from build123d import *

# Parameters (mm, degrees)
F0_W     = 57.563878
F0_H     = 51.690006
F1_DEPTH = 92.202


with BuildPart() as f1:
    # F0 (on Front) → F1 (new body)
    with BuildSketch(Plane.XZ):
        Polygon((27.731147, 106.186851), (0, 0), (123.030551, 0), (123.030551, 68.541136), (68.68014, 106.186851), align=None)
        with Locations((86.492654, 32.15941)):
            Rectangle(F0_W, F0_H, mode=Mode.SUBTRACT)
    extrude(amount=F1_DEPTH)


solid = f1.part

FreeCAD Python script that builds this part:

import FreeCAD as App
import Part
import Sketcher

V = App.Vector

doc = App.newDocument("Part")
params = doc.addObject("Spreadsheet::Sheet", "Params")
for row, (alias, value) in enumerate([
    ("pad1_length", "3.63 in"),
], start=1):
    params.set(f"A{row}", alias)
    params.set(f"B{row}", "=" + value)
    params.setAlias(f"B{row}", alias)

body = doc.addObject("PartDesign::Body", "Body")

# Sketch on XZ plane
sketch1 = body.newObject("Sketcher::SketchObject", "Sketch")
sketch1.AttachmentSupport = (doc.getObject("XZ_Plane"), [""])
sketch1.MapMode = "FlatFace"
sketch1.addGeometry(Part.LineSegment(V(27.731147, 106.186851, 0), V(0, 0, 0)), False)
sketch1.addGeometry(Part.LineSegment(V(0, 0, 0), V(123.030551, 0, 0)), False)
sketch1.addGeometry(Part.LineSegment(V(123.030551, 0, 0), V(123.030551, 68.541136, 0)), False)
sketch1.addGeometry(Part.LineSegment(V(123.030551, 68.541136, 0), V(68.68014, 106.186851, 0)), False)
sketch1.addGeometry(Part.LineSegment(V(68.68014, 106.186851, 0), V(27.731147, 106.186851, 0)), False)
sketch1.addGeometry(Part.LineSegment(V(115.274593, 6.314407, 0), V(57.710715, 6.314407, 0)), False)
sketch1.addGeometry(Part.LineSegment(V(57.710715, 6.314407, 0), V(57.710715, 58.004413, 0)), False)
sketch1.addGeometry(Part.LineSegment(V(57.710715, 58.004413, 0), V(115.274593, 58.004413, 0)), False)
sketch1.addGeometry(Part.LineSegment(V(115.274593, 58.004413, 0), V(115.274593, 6.314407, 0)), False)
sketch1.addConstraint(Sketcher.Constraint("Coincident", 0, 2, 1, 1))
sketch1.addConstraint(Sketcher.Constraint("Coincident", 1, 2, 2, 1))
sketch1.addConstraint(Sketcher.Constraint("Coincident", 2, 2, 3, 1))
sketch1.addConstraint(Sketcher.Constraint("Coincident", 3, 2, 4, 1))
sketch1.addConstraint(Sketcher.Constraint("Coincident", 4, 2, 0, 1))
sketch1.addConstraint(Sketcher.Constraint("Coincident", 5, 2, 6, 1))
sketch1.addConstraint(Sketcher.Constraint("Coincident", 6, 2, 7, 1))
sketch1.addConstraint(Sketcher.Constraint("Coincident", 7, 2, 8, 1))
sketch1.addConstraint(Sketcher.Constraint("Coincident", 8, 2, 5, 1))
sketch1.addConstraint(Sketcher.Constraint("Horizontal", 1))
sketch1.addConstraint(Sketcher.Constraint("Vertical", 2))
sketch1.addConstraint(Sketcher.Constraint("Horizontal", 4))
sketch1.addConstraint(Sketcher.Constraint("Horizontal", 5))
sketch1.addConstraint(Sketcher.Constraint("Vertical", 6))
sketch1.addConstraint(Sketcher.Constraint("Horizontal", 7))
sketch1.addConstraint(Sketcher.Constraint("Vertical", 8))
sketch1.addConstraint(Sketcher.Constraint("Coincident", 0, 2, -1, 1))
sketch1.addConstraint(Sketcher.Constraint("Distance", 3, 66.114802))
sketch1.addConstraint(Sketcher.Constraint("DistanceX", 1, 1, 1, 2, 123.030551))
sketch1.addConstraint(Sketcher.Constraint("DistanceX", 4, 2, 4, 1, 40.948993))
sketch1.addConstraint(Sketcher.Constraint("DistanceX", 5, 2, 5, 1, 57.563878))
sketch1.addConstraint(Sketcher.Constraint("DistanceY", 2, 1, 2, 2, 68.541136))
sketch1.addConstraint(Sketcher.Constraint("DistanceY", 6, 1, 6, 2, 51.690006))
sketch1.addConstraint(Sketcher.Constraint("DistanceX", -1, 1, 3, 2, 68.68014))
sketch1.addConstraint(Sketcher.Constraint("DistanceY", 5, 2, 2, 2, 62.226729))
sketch1.addConstraint(Sketcher.Constraint("DistanceX", 4, 2, 5, 2, 29.979568))
pad1 = body.newObject("PartDesign::Pad", "Pad")
pad1.Profile = sketch1
pad1.setExpression("Length", "Params.pad1_length")

doc.recompute()
